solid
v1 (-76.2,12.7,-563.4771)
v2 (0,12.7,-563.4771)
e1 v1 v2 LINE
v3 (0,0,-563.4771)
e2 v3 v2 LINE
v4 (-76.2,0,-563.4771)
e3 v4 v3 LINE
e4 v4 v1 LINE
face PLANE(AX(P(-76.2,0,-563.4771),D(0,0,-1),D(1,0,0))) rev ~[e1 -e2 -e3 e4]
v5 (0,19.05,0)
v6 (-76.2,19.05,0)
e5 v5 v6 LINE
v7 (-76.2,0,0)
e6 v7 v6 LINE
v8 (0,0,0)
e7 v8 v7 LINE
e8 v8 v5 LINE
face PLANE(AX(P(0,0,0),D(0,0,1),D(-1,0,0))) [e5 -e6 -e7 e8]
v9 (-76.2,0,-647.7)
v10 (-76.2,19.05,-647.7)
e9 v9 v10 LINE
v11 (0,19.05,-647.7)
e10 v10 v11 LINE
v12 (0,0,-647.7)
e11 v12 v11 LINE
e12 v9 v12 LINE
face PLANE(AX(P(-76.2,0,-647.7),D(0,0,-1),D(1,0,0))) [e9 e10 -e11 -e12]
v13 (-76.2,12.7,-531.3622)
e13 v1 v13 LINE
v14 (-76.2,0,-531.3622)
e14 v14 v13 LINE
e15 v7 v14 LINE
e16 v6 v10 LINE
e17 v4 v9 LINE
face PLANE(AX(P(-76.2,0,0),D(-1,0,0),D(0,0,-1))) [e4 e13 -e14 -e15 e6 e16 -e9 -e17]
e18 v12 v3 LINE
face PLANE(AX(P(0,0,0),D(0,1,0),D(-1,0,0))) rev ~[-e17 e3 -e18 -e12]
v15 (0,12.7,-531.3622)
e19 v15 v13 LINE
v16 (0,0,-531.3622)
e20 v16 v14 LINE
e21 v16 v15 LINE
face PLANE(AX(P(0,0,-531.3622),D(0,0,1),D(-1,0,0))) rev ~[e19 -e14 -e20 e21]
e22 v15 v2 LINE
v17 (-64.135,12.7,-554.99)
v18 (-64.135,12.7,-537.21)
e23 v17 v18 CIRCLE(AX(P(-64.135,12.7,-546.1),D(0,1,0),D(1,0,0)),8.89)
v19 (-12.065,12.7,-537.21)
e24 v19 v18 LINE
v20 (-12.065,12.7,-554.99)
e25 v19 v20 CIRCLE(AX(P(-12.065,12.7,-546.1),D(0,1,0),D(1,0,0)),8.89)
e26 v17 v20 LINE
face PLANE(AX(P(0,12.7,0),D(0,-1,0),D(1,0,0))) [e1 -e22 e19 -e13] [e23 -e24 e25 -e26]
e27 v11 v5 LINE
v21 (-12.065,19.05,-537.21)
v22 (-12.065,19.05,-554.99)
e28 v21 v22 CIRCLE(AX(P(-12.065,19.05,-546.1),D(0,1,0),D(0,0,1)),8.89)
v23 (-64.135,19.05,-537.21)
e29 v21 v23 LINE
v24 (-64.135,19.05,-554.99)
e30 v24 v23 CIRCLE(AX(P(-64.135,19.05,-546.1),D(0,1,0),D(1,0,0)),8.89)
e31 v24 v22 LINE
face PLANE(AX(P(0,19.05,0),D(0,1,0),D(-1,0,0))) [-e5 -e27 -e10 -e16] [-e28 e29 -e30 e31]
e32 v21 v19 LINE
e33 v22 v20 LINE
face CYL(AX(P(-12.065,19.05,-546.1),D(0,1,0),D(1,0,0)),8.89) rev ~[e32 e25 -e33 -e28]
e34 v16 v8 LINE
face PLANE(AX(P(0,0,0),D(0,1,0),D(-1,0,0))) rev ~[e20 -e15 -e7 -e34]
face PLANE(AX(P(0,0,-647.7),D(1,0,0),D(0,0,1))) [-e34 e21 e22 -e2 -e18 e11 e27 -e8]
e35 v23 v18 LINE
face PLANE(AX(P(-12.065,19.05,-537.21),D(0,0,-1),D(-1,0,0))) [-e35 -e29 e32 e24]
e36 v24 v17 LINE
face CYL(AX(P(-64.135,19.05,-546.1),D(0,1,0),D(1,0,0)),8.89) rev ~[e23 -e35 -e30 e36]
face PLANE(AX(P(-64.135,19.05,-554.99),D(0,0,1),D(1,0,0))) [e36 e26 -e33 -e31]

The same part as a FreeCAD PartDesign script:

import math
import FreeCAD as App
import Part
import Sketcher

V = App.Vector
Q = App.Units.Quantity

doc = App.newDocument("Part")
params = doc.addObject("Spreadsheet::Sheet", "Params")
for row, (alias, value) in enumerate([
    ("sketch1_width", "3 in"),
    ("sketch1_height", "25.5 in"),
    ("pad1_length", "0.75 in"),
    ("sketch2_radius", "0.35 in"),
    ("sketch2_width", "2.05 in"),
    ("pocket1_length", "1 in"),
    ("sketch3_width", "3 in"),
    ("pocket2_length", "0.5 in"),
], start=1):
    params.set(f"A{row}", alias)
    params.set(f"B{row}", "=" + value)
    params.setAlias(f"B{row}", alias)

body = doc.addObject("PartDesign::Body", "Body")

# Sketch on XZ plane
sketch1 = body.newObject("Sketcher::SketchObject", "Sketch")
sketch1.AttachmentSupport = (doc.getObject("XZ_Plane"), [""])
sketch1.MapMode = "FlatFace"
sketch1.addGeometry([
    Part.LineSegment(V(-76.2, 0, 0), V(0, 0, 0)),
    Part.LineSegment(V(0, 0, 0), V(0, -647.7, 0)),
    Part.LineSegment(V(0, -647.7, 0), V(-76.2, -647.7, 0)),
    Part.LineSegment(V(-76.2, -647.7, 0), V(-76.2, 0, 0)),
], False)
sketch1.addConstraint([
    Sketcher.Constraint("Coincident", 0, 2, 1, 1),
    Sketcher.Constraint("Coincident", 1, 2, 2, 1),
    Sketcher.Constraint("Coincident", 2, 2, 3, 1),
    Sketcher.Constraint("Coincident", 3, 2, 0, 1),
    Sketcher.Constraint("Horizontal", 0),
    Sketcher.Constraint("Vertical", 1),
    Sketcher.Constraint("Horizontal", 2),
    Sketcher.Constraint("Vertical", 3),
    Sketcher.Constraint("Coincident", 0, 2, -1, 1),
    Sketcher.Constraint("DistanceX", 0, 1, 0, 2, Q("3 in")),
    Sketcher.Constraint("DistanceY", 1, 2, 1, 1, Q("25.5 in")),
])
sketch1.setExpression("Constraints[9]", "Params.sketch1_width")
sketch1.setExpression("Constraints[10]", "Params.sketch1_height")
pad1 = body.newObject("PartDesign::Pad", "Pad")
pad1.Profile = sketch1
pad1.setExpression("Length", "Params.pad1_length")
pad1.Reversed = True

# Sketch on XZ plane
sketch2 = body.newObject("Sketcher::SketchObject", "Sketch001")
sketch2.AttachmentSupport = (doc.getObject("XZ_Plane"), [""])
sketch2.MapMode = "FlatFace"
sketch2.AttachmentOffset = App.Placement(V(0, 0, -0.75 * 25.4), App.Rotation())
sketch2.addGeometry([
    Part.LineSegment(V(-12.065, -554.99, 0), V(-64.135, -554.99, 0)),
    Part.ArcOfCircle(Part.Circle(V(-64.135, -546.1, 0), V(0, 0, 1), 8.89), math.radians(90), math.radians(270)),
    Part.LineSegment(V(-64.135, -537.21, 0), V(-12.065, -537.21, 0)),
    Part.ArcOfCircle(Part.Circle(V(-12.065, -546.1, 0), V(0, 0, 1), 8.89), math.radians(-90), math.radians(90)),
], False)
sketch2.addConstraint([
    Sketcher.Constraint("Tangent", 0, 2, 1, 2),
    Sketcher.Constraint("Tangent", 1, 1, 2, 1),
    Sketcher.Constraint("Tangent", 2, 2, 3, 2),
    Sketcher.Constraint("Tangent", 3, 1, 0, 1),
    Sketcher.Constraint("Horizontal", 0),
    Sketcher.Constraint("Horizontal", 2),
    Sketcher.Constraint("Radius", 1, Q("0.35 in")),
    Sketcher.Constraint("DistanceX", 0, 2, 0, 1, Q("2.05 in")),
    Sketcher.Constraint("DistanceY", 1, 3, -1, 1, Q("21.5 in")),
    Sketcher.Constraint("DistanceX", 1, 3, -1, 1, Q("2.525 in")),
])
sketch2.setExpression("Constraints[6]", "Params.sketch2_radius")
sketch2.setExpression("Constraints[7]", "Params.sketch2_width")
pocket1 = body.newObject("PartDesign::Pocket", "Pocket")
pocket1.Profile = sketch2
pocket1.setExpression("Length", "Params.pocket1_length")
pocket1.Reversed = True

# Sketch on XZ plane
sketch3 = body.newObject("Sketcher::SketchObject", "Sketch002")
sketch3.AttachmentSupport = (doc.getObject("XZ_Plane"), [""])
sketch3.MapMode = "FlatFace"
sketch3.addGeometry([
    Part.LineSegment(V(0, -563.4771, 0), V(0, -531.3622, 0)),
    Part.LineSegment(V(0, -531.3622, 0), V(-76.2, -531.3622, 0)),
    Part.LineSegment(V(-76.2, -531.3622, 0), V(-76.2, -563.4771, 0)),
    Part.LineSegment(V(-76.2, -563.4771, 0), V(0, -563.4771, 0)),
], False)
sketch3.addConstraint([
    Sketcher.Constraint("Coincident", 0, 2, 1, 1),
    Sketcher.Constraint("Coincident", 1, 2, 2, 1),
    Sketcher.Constraint("Coincident", 2, 2, 3, 1),
    Sketcher.Constraint("Coincident", 3, 2, 0, 1),
    Sketcher.Constraint("Vertical", 0),
    Sketcher.Constraint("Horizontal", 1),
    Sketcher.Constraint("Vertical", 2),
    Sketcher.Constraint("Horizontal", 3),
    Sketcher.Constraint("PointOnObject", 0, 2, -2),
    Sketcher.Constraint("DistanceX", 1, 2, 1, 1, Q("3 in")),
    Sketcher.Constraint("DistanceY", 0, 1, 0, 2, 32.115),
    Sketcher.Constraint("DistanceY", 0, 2, -1, 1, 531.3622),
])
sketch3.setExpression("Constraints[9]", "Params.sketch3_width")
pocket2 = body.newObject("PartDesign::Pocket", "Pocket001")
pocket2.Profile = sketch3
pocket2.setExpression("Length", "Params.pocket2_length")

doc.recompute()
